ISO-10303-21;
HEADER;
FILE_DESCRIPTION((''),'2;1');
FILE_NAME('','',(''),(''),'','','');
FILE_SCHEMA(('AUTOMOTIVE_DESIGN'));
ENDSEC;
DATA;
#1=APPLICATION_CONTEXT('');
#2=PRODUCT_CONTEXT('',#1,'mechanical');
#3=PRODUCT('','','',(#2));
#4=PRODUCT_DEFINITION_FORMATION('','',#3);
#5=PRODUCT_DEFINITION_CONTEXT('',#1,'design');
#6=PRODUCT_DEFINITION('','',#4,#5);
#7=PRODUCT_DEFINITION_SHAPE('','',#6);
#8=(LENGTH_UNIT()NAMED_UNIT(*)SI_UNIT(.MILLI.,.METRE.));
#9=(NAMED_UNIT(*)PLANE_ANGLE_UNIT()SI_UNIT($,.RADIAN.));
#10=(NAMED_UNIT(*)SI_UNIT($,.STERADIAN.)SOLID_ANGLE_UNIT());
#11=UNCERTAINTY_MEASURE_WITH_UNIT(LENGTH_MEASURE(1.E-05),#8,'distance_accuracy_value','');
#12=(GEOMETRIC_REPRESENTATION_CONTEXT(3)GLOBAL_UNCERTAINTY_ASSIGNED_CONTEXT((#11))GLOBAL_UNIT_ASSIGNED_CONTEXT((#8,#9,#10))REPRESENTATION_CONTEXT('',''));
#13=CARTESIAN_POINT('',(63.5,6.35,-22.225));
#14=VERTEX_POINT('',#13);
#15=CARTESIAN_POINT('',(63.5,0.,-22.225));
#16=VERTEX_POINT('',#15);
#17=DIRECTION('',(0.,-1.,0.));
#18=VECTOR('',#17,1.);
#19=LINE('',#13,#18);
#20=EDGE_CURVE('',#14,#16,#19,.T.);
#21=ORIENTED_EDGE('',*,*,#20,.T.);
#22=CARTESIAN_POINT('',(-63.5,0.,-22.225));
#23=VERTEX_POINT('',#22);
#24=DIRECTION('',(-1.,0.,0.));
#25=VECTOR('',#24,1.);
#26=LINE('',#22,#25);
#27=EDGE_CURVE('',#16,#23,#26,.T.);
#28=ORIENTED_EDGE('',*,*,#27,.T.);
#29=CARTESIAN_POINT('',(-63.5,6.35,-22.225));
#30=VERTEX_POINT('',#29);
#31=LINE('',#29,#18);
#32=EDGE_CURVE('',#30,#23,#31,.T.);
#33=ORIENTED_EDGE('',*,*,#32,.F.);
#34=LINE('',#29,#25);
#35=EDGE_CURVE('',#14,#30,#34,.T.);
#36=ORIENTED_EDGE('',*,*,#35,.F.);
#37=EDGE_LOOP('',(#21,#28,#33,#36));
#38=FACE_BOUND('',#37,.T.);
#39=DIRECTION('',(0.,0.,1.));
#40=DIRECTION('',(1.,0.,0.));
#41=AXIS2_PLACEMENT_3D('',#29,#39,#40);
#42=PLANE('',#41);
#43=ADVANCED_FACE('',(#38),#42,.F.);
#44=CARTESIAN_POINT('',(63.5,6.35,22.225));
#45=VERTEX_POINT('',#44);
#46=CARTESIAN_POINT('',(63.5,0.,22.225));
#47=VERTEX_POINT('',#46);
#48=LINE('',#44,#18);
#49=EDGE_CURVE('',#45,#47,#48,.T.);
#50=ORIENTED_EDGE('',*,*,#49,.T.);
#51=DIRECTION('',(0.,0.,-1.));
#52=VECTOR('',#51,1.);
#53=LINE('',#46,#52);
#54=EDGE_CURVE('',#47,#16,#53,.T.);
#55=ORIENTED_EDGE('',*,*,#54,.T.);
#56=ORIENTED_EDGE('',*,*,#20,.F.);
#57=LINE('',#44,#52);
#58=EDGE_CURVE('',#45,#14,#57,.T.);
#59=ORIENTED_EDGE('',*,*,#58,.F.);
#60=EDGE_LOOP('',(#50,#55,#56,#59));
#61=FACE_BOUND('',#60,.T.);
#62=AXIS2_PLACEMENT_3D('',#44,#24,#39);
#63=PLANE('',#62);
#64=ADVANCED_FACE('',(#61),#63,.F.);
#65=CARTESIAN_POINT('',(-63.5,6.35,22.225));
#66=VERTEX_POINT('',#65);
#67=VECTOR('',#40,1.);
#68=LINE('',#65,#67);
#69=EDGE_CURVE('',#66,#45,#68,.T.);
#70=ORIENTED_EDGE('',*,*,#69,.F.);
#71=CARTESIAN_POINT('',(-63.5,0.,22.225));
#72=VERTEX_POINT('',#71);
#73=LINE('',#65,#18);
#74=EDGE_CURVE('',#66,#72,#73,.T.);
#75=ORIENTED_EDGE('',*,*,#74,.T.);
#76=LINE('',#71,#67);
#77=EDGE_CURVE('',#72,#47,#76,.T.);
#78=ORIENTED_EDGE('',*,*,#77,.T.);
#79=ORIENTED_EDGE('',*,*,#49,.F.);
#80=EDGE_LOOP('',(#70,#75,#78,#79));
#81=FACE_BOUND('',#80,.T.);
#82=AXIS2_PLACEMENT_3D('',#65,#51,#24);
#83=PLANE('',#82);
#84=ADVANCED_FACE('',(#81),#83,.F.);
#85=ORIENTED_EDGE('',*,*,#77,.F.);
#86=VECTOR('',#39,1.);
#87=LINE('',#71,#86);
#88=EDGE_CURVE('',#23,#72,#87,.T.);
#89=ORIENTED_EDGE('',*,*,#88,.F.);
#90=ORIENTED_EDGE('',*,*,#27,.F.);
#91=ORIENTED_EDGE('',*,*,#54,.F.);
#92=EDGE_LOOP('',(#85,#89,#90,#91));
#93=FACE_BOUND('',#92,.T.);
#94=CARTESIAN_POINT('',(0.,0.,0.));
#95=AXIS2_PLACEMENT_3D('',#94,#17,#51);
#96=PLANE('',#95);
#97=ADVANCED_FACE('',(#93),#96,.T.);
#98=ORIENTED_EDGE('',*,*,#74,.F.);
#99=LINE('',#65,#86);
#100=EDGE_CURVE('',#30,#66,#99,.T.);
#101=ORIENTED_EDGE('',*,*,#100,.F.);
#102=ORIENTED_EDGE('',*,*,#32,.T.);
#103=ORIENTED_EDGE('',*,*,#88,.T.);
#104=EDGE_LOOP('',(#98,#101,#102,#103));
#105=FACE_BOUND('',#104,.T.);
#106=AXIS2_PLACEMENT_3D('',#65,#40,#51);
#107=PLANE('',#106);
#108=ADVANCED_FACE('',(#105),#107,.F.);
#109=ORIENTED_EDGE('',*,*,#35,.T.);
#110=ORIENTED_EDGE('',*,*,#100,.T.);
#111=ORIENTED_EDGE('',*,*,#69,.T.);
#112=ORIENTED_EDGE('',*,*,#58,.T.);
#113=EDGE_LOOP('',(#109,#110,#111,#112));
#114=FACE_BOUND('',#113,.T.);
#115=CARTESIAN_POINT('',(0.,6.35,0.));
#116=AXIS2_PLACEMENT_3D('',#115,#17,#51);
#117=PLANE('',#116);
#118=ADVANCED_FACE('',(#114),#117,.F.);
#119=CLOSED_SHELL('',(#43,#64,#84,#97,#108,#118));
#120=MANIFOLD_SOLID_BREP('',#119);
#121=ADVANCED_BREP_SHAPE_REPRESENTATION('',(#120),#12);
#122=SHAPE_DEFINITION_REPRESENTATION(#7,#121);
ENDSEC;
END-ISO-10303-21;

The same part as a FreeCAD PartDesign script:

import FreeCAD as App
import Part
import Sketcher

V = App.Vector
Q = App.Units.Quantity


def add_polygon(sketch, points):
    """Adds a closed chain of lines whose ends are joined by coincident constraints."""
    first, n = sketch.GeometryCount, len(points)
    for a, b in zip(points, points[1:] + points[:1]):
        sketch.addGeometry(Part.LineSegment(App.Vector(*a, 0), App.Vector(*b, 0)), False)
    for i in range(n):
        sketch.addConstraint(Sketcher.Constraint("Coincident", first + i, 2, first + (i + 1) % n, 1))

doc = App.newDocument("Part")
body = doc.addObject("PartDesign::Body", "Body")

sketch1 = body.newObject("Sketcher::SketchObject", "Sketch")
sketch1.AttachmentSupport = (doc.getObject("XZ_Plane"), [""])
sketch1.MapMode = "FlatFace"
add_polygon(sketch1, [(-64, -22), (-64, 22), (64, 22), (64, -22)])
sketch1.addConstraint(Sketcher.Constraint("Vertical", 0))
sketch1.addConstraint(Sketcher.Constraint("Horizontal", 1))
sketch1.addConstraint(Sketcher.Constraint("Vertical", 2))
sketch1.addConstraint(Sketcher.Constraint("Horizontal", 3))
sketch1.addConstraint(Sketcher.Constraint("Symmetric", 0, 2, 2, 2, -1, 1))
sketch1.addConstraint(Sketcher.Constraint("DistanceX", 1, 1, 1, 2, Q("5 in")))
sketch1.addConstraint(Sketcher.Constraint("DistanceY", 0, 1, 0, 2, Q("1.75 in")))
pad1 = body.newObject("PartDesign::Pad", "Pad")
pad1.Profile = sketch1
pad1.Length = Q("0.25 in")
pad1.Reversed = True

doc.recompute()
